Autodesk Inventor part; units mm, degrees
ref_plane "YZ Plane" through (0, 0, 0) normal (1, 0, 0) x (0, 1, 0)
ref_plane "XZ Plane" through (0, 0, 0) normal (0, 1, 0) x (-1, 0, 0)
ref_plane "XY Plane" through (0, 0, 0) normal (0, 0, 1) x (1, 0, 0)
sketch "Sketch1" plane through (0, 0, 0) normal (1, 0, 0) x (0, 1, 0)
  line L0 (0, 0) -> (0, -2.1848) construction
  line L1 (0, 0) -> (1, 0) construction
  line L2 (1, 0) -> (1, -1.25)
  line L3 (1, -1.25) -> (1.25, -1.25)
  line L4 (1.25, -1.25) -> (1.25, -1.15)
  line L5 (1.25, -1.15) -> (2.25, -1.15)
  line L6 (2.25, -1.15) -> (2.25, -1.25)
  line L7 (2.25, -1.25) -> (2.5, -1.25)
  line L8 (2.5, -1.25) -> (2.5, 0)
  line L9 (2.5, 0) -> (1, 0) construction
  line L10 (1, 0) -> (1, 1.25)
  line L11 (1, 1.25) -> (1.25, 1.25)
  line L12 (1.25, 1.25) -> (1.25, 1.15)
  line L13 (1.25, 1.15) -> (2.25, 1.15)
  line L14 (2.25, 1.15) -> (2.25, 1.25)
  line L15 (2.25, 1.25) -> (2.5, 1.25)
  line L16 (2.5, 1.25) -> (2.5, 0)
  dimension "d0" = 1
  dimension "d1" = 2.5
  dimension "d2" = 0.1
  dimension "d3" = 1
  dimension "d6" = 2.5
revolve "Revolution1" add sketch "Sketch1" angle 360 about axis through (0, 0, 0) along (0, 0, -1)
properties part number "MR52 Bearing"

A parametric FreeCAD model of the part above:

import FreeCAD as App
import Part
import Sketcher
Q = App.Units.Quantity


def add_polygon(sketch, points):
    """Adds a closed chain of lines whose ends are joined by coincident constraints."""
    first, n = sketch.GeometryCount, len(points)
    for a, b in zip(points, points[1:] + points[:1]):
        sketch.addGeometry(Part.LineSegment(App.Vector(*a, 0), App.Vector(*b, 0)), False)
    for i in range(n):
        sketch.addConstraint(Sketcher.Constraint("Coincident", first + i, 2, first + (i + 1) % n, 1))

doc = App.newDocument("Part")
body = doc.addObject("PartDesign::Body", "Body")

# Sketch on YZ plane
sketch1 = doc.addObject("Sketcher::SketchObject", "Sketch")
body.addObject(sketch1)
sketch1.AttachmentSupport = (doc.YZ_Plane, [""])
sketch1.MapMode = "FlatFace"
add_polygon(sketch1, [(1, 1.25), (1, -1.25), (1.25, -1.25), (1.25, -1.15), (2.25, -1.15), (2.25, -1.25), (2.5, -1.25), (2.5, 1.25), (2.25, 1.25), (2.25, 1.15), (1.25, 1.15), (1.25, 1.25)])  # lines 0-11
sketch1.addConstraint([
    Sketcher.Constraint("Vertical", 0),
    Sketcher.Constraint("Horizontal", 1),
    Sketcher.Constraint("Vertical", 2),
    Sketcher.Constraint("Horizontal", 3),
    Sketcher.Constraint("Vertical", 4),
    Sketcher.Constraint("Horizontal", 5),
    Sketcher.Constraint("Vertical", 6),
    Sketcher.Constraint("Horizontal", 7),
    Sketcher.Constraint("Vertical", 8),
    Sketcher.Constraint("Horizontal", 9),
    Sketcher.Constraint("Vertical", 10),
    Sketcher.Constraint("Horizontal", 11),
    Sketcher.Constraint("Symmetric", 4, 2, 7, 2, -1),
    Sketcher.Constraint("Symmetric", 2, 2, 9, 2, -1),
    Sketcher.Constraint("Horizontal", 1, 2, 4, 2),
    Sketcher.Constraint("Horizontal", 7, 2, 10, 2),
    Sketcher.Constraint("Equal", 1, 5),
    Sketcher.Constraint("DistanceX", 3, 1, 3, 2, Q("1 mm")),
    Sketcher.Constraint("DistanceY", 0, 2, 0, 1, Q("2.5 mm")),
    Sketcher.Constraint("DistanceY", 2, 1, 2, 2, Q("0.1 mm")),
    Sketcher.Constraint("DistanceX", -1, 1, 0, 2, Q("1 mm")),
    Sketcher.Constraint("DistanceX", -1, 1, 5, 2, Q("2.5 mm")),
])
revolution = doc.addObject("PartDesign::Revolution", "Revolution")
body.addObject(revolution)
revolution.Profile = sketch1
revolution.ReferenceAxis = (sketch1, ["V_Axis"])
revolution.Angle = 360

doc.recompute()
